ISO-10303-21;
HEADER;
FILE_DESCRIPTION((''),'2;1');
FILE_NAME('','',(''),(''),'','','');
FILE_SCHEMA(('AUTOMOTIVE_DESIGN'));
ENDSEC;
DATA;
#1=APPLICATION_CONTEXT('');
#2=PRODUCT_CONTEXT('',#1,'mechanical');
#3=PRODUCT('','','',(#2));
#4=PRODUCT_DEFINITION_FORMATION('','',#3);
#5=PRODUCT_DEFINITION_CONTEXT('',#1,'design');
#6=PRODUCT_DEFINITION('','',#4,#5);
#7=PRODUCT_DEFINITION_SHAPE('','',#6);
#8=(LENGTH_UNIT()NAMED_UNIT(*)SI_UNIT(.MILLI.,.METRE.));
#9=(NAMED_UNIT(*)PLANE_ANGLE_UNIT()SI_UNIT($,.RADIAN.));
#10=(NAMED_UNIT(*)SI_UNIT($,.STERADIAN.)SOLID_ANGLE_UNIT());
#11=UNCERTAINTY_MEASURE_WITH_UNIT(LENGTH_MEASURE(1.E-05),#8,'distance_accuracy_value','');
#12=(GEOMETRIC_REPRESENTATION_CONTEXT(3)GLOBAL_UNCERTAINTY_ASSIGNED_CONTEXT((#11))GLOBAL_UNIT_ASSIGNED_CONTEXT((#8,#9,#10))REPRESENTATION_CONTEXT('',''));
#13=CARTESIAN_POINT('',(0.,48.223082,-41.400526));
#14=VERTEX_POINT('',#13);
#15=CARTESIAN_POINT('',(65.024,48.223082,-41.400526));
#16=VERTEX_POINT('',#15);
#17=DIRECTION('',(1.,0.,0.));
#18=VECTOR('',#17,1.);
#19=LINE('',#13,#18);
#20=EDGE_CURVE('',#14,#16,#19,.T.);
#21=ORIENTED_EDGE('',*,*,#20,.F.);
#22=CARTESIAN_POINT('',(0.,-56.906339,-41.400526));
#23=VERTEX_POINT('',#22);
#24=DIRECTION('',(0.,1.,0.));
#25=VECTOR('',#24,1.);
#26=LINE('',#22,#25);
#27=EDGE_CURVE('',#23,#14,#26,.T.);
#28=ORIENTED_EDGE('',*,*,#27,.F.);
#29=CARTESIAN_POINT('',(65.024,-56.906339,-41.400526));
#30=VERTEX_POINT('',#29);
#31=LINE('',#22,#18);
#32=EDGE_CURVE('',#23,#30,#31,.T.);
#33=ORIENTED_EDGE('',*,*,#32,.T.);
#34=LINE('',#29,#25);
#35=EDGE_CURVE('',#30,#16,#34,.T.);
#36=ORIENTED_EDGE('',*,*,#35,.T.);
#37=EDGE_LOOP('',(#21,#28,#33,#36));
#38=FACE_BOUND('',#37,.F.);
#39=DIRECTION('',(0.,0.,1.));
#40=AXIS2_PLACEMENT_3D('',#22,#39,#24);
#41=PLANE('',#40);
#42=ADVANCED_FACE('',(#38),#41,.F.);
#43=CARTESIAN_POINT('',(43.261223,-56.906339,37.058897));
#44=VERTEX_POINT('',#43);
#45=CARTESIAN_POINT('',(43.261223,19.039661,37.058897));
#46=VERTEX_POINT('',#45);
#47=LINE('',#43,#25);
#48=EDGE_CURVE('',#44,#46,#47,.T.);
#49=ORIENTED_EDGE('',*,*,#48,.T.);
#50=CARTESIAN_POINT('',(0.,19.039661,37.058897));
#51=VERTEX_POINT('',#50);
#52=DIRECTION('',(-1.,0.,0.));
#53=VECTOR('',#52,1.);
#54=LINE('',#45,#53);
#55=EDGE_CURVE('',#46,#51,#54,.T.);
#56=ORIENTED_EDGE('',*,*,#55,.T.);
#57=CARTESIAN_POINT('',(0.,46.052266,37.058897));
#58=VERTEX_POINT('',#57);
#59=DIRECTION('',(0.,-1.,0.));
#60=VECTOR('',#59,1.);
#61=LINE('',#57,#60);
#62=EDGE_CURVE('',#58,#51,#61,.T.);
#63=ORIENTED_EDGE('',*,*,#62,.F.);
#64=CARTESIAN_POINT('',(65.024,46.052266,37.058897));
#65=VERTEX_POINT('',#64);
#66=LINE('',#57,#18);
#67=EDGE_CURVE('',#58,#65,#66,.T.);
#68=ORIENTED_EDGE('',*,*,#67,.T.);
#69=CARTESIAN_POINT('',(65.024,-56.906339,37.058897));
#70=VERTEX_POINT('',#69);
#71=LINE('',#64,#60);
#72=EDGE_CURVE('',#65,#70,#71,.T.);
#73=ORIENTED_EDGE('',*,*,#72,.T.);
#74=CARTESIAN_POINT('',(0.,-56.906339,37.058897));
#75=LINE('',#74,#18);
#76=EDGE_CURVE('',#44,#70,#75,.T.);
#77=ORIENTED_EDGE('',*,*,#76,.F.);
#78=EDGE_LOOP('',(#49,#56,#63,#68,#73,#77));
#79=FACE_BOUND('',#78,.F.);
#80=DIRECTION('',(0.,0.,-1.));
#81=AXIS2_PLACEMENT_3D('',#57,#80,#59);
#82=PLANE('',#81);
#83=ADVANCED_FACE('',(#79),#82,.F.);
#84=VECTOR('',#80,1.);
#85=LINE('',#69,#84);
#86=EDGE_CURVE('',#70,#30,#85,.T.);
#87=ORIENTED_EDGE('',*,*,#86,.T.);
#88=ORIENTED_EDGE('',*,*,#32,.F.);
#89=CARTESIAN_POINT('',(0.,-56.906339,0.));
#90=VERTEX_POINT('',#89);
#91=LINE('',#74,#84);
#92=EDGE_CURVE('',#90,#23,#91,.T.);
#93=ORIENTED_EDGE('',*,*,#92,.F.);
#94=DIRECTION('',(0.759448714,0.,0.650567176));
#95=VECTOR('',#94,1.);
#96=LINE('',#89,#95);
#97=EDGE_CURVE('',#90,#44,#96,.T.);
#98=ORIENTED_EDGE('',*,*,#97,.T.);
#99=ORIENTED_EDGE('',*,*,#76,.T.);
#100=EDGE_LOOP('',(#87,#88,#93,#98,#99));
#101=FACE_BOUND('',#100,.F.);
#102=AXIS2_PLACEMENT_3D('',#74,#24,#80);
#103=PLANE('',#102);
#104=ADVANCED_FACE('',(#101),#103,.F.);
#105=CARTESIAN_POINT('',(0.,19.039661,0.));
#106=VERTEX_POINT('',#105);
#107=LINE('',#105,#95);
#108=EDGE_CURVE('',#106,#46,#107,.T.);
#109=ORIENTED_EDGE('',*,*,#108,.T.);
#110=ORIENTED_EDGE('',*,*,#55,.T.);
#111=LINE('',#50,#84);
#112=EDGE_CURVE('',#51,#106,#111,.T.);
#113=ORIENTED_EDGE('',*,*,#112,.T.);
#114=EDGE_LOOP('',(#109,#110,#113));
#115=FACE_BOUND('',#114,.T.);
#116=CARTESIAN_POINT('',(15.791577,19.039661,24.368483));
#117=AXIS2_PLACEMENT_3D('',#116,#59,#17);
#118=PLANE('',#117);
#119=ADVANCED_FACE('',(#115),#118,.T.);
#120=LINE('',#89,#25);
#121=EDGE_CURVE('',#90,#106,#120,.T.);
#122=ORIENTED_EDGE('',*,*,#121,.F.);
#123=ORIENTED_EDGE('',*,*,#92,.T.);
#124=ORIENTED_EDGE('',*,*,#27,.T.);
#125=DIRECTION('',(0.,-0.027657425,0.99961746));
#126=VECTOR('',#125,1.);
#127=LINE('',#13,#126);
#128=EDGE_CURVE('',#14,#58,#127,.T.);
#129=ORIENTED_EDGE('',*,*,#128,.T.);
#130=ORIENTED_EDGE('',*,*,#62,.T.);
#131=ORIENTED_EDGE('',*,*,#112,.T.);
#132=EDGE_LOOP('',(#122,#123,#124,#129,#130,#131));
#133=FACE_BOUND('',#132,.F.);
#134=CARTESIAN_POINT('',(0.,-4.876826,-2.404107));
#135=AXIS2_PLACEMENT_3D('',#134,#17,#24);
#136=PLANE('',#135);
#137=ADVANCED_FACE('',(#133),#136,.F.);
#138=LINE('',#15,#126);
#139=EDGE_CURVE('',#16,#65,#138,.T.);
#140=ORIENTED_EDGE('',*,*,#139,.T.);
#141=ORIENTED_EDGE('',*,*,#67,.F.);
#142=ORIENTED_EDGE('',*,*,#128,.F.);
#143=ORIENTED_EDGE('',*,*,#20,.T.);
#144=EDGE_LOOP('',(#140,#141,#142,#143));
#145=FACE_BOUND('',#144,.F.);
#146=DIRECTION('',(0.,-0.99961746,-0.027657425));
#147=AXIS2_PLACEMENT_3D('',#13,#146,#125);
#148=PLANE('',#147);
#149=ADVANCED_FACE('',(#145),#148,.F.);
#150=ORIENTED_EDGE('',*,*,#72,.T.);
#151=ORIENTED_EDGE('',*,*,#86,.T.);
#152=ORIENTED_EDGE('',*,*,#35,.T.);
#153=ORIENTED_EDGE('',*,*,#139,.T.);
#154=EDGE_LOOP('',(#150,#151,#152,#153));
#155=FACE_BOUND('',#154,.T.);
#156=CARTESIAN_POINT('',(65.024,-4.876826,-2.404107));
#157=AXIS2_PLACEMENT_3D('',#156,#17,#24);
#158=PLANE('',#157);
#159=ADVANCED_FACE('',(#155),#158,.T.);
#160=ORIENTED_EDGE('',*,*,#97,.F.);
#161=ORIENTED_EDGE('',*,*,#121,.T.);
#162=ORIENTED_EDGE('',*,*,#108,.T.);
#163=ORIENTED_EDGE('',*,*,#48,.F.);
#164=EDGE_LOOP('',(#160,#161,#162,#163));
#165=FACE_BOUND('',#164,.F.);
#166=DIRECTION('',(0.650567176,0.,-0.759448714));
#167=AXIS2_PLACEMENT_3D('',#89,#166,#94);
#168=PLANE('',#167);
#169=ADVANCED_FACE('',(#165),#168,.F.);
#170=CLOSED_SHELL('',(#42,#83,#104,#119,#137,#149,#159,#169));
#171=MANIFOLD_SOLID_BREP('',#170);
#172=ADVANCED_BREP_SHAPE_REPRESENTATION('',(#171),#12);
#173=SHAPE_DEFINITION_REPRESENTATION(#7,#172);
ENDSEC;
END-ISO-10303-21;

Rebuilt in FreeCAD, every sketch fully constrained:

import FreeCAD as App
import Part
import Sketcher

V = App.Vector
Q = App.Units.Quantity

doc = App.newDocument("Part")
params = doc.addObject("Spreadsheet::Sheet", "Params")
for row, (alias, value) in enumerate([
    ("pad1_length", "2.56 in"),
    ("pocket1_length", "2.99 in"),
], start=1):
    params.set(f"A{row}", alias)
    params.set(f"B{row}", "=" + value)
    params.setAlias(f"B{row}", alias)

body = doc.addObject("PartDesign::Body", "Body")

sketch1 = body.newObject("Sketcher::SketchObject", "Sketch")
sketch1.AttachmentSupport = (doc.getObject("YZ_Plane"), [""])
sketch1.MapMode = "FlatFace"
sketch1.addGeometry([
    Part.LineSegment(V(46, 37, 0), V(-57, 37, 0)),
    Part.LineSegment(V(-57, 37, 0), V(-57, -41, 0)),
    Part.LineSegment(V(-57, -41, 0), V(48, -41, 0)),
    Part.LineSegment(V(48, -41, 0), V(46, 37, 0)),
], False)
sketch1.addConstraint([
    Sketcher.Constraint("Coincident", 0, 2, 1, 1),
    Sketcher.Constraint("Coincident", 1, 2, 2, 1),
    Sketcher.Constraint("Coincident", 2, 2, 3, 1),
    Sketcher.Constraint("Coincident", 3, 2, 0, 1),
    Sketcher.Constraint("Horizontal", 0),
    Sketcher.Constraint("Vertical", 1),
    Sketcher.Constraint("Horizontal", 2),
    Sketcher.Constraint("DistanceX", 2, 1, 2, 2, Q("105.129421 mm")),
    Sketcher.Constraint("Distance", 3, Q("78.489448 mm")),
    Sketcher.Constraint("DistanceX", 0, 2, 0, 1, Q("102.958605 mm")),
    Sketcher.Constraint("DistanceX", 0, 2, -1, 1, Q("56.906339 mm")),
    Sketcher.Constraint("DistanceY", -1, 1, 0, 2, Q("37.058897 mm")),
])
pad1 = body.newObject("PartDesign::Pad", "Pad")
pad1.Profile = sketch1
pad1.setExpression("Length", "Params.pad1_length")

sketch2 = body.newObject("Sketcher::SketchObject", "Sketch001")
sketch2.AttachmentSupport = (doc.getObject("XZ_Plane"), [""])
sketch2.MapMode = "FlatFace"
sketch2.AttachmentOffset = App.Placement(V(0, 0, 56.906339), App.Rotation())
sketch2.addGeometry([
    Part.LineSegment(V(0, 0, 0), V(43, 37, 0)),
    Part.LineSegment(V(43, 37, 0), V(0, 37, 0)),
    Part.LineSegment(V(0, 37, 0), V(0, 0, 0)),
], False)
sketch2.addConstraint([
    Sketcher.Constraint("Coincident", 0, 2, 1, 1),
    Sketcher.Constraint("Coincident", 1, 2, 2, 1),
    Sketcher.Constraint("Coincident", 2, 2, 0, 1),
    Sketcher.Constraint("Horizontal", 1),
    Sketcher.Constraint("Vertical", 2),
    Sketcher.Constraint("Coincident", 2, 2, -1, 1),
    Sketcher.Constraint("DistanceX", 1, 2, 1, 1, Q("43.261223 mm")),
    Sketcher.Constraint("DistanceY", 2, 2, 2, 1, Q("37.058897 mm")),
])
pocket1 = body.newObject("PartDesign::Pocket", "Pocket")
pocket1.Profile = sketch2
pocket1.setExpression("Length", "Params.pocket1_length")

doc.recompute()
